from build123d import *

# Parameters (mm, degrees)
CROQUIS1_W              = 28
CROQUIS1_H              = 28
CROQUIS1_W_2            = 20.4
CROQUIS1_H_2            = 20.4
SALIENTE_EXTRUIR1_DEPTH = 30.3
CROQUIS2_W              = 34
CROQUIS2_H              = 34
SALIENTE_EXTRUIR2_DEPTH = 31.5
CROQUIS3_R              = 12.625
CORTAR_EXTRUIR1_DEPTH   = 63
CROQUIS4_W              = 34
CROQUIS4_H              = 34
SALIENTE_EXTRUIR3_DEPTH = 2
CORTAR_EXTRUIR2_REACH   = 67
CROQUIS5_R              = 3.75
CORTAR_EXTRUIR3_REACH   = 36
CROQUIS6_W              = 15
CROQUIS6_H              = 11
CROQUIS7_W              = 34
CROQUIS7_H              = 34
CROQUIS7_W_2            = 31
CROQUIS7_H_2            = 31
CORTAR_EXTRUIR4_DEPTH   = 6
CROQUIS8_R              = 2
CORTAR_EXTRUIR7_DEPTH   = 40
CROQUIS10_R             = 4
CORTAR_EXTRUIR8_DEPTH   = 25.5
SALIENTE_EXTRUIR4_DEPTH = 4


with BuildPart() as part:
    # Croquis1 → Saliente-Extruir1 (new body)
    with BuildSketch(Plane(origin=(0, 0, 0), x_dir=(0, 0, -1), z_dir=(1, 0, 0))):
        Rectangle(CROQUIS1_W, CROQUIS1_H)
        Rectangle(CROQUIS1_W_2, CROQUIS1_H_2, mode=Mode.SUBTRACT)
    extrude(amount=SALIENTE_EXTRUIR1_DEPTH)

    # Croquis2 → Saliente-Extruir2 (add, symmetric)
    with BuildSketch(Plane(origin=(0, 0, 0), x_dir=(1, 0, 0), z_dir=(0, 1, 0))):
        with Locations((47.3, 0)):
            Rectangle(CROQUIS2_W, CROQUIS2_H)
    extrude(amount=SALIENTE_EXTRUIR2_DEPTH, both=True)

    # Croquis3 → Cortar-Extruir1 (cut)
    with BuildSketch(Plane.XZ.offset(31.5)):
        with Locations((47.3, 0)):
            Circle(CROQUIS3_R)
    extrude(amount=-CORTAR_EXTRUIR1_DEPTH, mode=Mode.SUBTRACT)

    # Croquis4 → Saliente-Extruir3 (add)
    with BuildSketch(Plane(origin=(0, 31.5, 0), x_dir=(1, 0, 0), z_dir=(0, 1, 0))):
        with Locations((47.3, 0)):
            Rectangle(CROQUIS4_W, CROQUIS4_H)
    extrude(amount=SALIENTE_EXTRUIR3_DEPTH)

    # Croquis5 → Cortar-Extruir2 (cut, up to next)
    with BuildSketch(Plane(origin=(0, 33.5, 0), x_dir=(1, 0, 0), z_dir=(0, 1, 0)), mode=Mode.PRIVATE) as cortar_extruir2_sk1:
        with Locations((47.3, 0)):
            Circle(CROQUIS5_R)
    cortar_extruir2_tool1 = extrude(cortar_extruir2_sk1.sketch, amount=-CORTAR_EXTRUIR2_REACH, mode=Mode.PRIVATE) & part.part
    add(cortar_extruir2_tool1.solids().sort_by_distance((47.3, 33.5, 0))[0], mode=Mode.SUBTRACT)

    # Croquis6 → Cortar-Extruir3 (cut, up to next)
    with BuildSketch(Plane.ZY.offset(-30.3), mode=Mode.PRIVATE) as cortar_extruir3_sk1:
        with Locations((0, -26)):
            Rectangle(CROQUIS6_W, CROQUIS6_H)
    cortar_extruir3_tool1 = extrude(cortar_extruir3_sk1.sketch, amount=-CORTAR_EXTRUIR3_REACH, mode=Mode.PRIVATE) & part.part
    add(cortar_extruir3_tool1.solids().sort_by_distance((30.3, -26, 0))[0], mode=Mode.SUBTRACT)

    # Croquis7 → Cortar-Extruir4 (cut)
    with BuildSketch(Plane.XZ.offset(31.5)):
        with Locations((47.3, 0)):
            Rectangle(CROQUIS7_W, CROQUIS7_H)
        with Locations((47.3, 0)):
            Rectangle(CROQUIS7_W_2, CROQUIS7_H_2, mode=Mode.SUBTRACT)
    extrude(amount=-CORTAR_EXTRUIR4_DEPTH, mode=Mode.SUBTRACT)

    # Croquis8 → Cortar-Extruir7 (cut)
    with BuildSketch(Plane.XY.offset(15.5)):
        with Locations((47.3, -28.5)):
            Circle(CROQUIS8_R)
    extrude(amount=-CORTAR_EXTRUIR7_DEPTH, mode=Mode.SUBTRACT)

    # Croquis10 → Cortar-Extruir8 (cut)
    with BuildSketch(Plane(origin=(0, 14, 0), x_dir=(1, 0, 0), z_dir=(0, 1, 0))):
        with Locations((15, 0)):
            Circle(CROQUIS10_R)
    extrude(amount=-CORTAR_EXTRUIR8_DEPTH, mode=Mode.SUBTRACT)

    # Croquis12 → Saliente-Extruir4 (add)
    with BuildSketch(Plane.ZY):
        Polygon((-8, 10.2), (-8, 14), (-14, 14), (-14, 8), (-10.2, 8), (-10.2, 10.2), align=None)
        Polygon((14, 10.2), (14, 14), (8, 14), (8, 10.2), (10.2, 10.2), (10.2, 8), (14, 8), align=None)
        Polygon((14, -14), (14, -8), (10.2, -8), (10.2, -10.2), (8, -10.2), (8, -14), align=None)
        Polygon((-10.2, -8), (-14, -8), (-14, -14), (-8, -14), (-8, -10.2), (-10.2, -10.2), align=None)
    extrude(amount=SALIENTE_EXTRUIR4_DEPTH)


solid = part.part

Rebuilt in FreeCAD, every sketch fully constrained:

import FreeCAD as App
import Part
import Sketcher
from FreeCAD import Vector
Q = App.Units.Quantity

doc = App.newDocument("Part")
params = doc.addObject("Spreadsheet::Sheet", "Params")
for row, (alias, value) in enumerate([
    ("sketch1_width", "28 mm"),
    ("sketch1_width2", "20.4 mm"),
    ("pad1_length", "30.3 mm"),
    ("sketch2_width", "34 mm"),
    ("pad2_length", "63 mm"),
    ("sketch3_diameter", "25.25 mm"),
    ("pocket1_length", "63 mm"),
    ("sketch4_width", "34 mm"),
    ("pad3_length", "2 mm"),
    ("sketch5_diameter", "7.5 mm"),
    ("sketch6_width", "11 mm"),
    ("sketch6_height", "15 mm"),
    ("sketch7_width", "34 mm"),
    ("sketch7_width2", "31 mm"),
    ("pocket4_length", "6 mm"),
    ("sketch8_diameter", "4 mm"),
    ("pocket5_length", "40 mm"),
    ("sketch9_diameter", "8 mm"),
    ("pocket6_length", "25.5 mm"),
    ("sketch10_width", "6 mm"),
    ("sketch10_width2", "3.8 mm"),
    ("pad4_length", "4 mm"),
], start=1):
    params.set(f"A{row}", alias)
    params.set(f"B{row}", "=" + value)
    params.setAlias(f"B{row}", alias)

body = doc.addObject("PartDesign::Body", "Body")

# Sketch on YZ plane
sketch1 = doc.addObject("Sketcher::SketchObject", "Sketch")
body.addObject(sketch1)
sketch1.AttachmentSupport = (doc.YZ_Plane, [""])
sketch1.MapMode = "FlatFace"
sketch1.addGeometry([
    Part.LineSegment(Vector(14, 14, 0), Vector(-14, 14, 0)),  # 0
    Part.LineSegment(Vector(-14, 14, 0), Vector(-14, -14, 0)),  # 1
    Part.LineSegment(Vector(-14, -14, 0), Vector(14, -14, 0)),  # 2
    Part.LineSegment(Vector(14, -14, 0), Vector(14, 14, 0)),  # 3
    Part.LineSegment(Vector(-10, -10, 0), Vector(-10, 10, 0)),  # 4
    Part.LineSegment(Vector(-10, 10, 0), Vector(10, 10, 0)),  # 5
    Part.LineSegment(Vector(10, 10, 0), Vector(10, -10, 0)),  # 6
    Part.LineSegment(Vector(10, -10, 0), Vector(-10, -10, 0)),  # 7
], False)
sketch1.addConstraint([
    Sketcher.Constraint("Coincident", 0, 2, 1, 1),
    Sketcher.Constraint("Coincident", 1, 2, 2, 1),
    Sketcher.Constraint("Coincident", 2, 2, 3, 1),
    Sketcher.Constraint("Coincident", 3, 2, 0, 1),
    Sketcher.Constraint("Coincident", 4, 2, 5, 1),
    Sketcher.Constraint("Coincident", 5, 2, 6, 1),
    Sketcher.Constraint("Coincident", 6, 2, 7, 1),
    Sketcher.Constraint("Coincident", 7, 2, 4, 1),
    Sketcher.Constraint("Horizontal", 0),
    Sketcher.Constraint("Vertical", 1),
    Sketcher.Constraint("Horizontal", 2),
    Sketcher.Constraint("Vertical", 3),
    Sketcher.Constraint("Vertical", 4),
    Sketcher.Constraint("Horizontal", 5),
    Sketcher.Constraint("Vertical", 6),
    Sketcher.Constraint("Horizontal", 7),
    Sketcher.Constraint("Symmetric", 0, 2, 2, 2, -1, 1),
    Sketcher.Constraint("Symmetric", 4, 2, 6, 2, -1, 1),
    Sketcher.Constraint("Equal", 2, 1),
    Sketcher.Constraint("Equal", 7, 4),
    Sketcher.Constraint("DistanceX", 0, 2, 0, 1, Q("28 mm")),
    Sketcher.Constraint("DistanceX", 5, 1, 5, 2, Q("20.4 mm")),
])
sketch1.setExpression("Constraints[20]", "Params.sketch1_width")
sketch1.setExpression("Constraints[21]", "Params.sketch1_width2")
pad1 = doc.addObject("PartDesign::Pad", "Pad")
body.addObject(pad1)
pad1.Profile = sketch1
pad1.setExpression("Length", "Params.pad1_length")

# Sketch on XZ plane
sketch2 = doc.addObject("Sketcher::SketchObject", "Sketch001")
body.addObject(sketch2)
sketch2.AttachmentSupport = (doc.XZ_Plane, [""])
sketch2.MapMode = "FlatFace"
sketch2.addGeometry([
    Part.LineSegment(Vector(30, -17, 0), Vector(30, 17, 0)),
    Part.LineSegment(Vector(30, 17, 0), Vector(64, 17, 0)),
    Part.LineSegment(Vector(64, 17, 0), Vector(64, -17, 0)),
    Part.LineSegment(Vector(64, -17, 0), Vector(30, -17, 0)),
], False)
sketch2.addConstraint([
    Sketcher.Constraint("Coincident", 0, 2, 1, 1),
    Sketcher.Constraint("Coincident", 1, 2, 2, 1),
    Sketcher.Constraint("Coincident", 2, 2, 3, 1),
    Sketcher.Constraint("Coincident", 3, 2, 0, 1),
    Sketcher.Constraint("Vertical", 0),
    Sketcher.Constraint("Horizontal", 1),
    Sketcher.Constraint("Vertical", 2),
    Sketcher.Constraint("Horizontal", 3),
    Sketcher.Constraint("Equal", 3, 0),
    Sketcher.Constraint("DistanceX", 1, 1, 1, 2, Q("34 mm")),
    Sketcher.Constraint("DistanceY", -1, 1, 0, 2, Q("17 mm")),
    Sketcher.Constraint("DistanceX", -1, 1, 0, 2, Q("30.3 mm")),
])
sketch2.setExpression("Constraints[9]", "Params.sketch2_width")
pad2 = doc.addObject("PartDesign::Pad", "Pad001")
body.addObject(pad2)
pad2.Profile = sketch2
pad2.setExpression("Length", "Params.pad2_length")
pad2.Midplane = True

# Sketch on XZ plane
sketch3 = doc.addObject("Sketcher::SketchObject", "Sketch002")
body.addObject(sketch3)
sketch3.AttachmentSupport = (doc.XZ_Plane, [""])
sketch3.MapMode = "FlatFace"
sketch3.AttachmentOffset = App.Placement(Vector(0, 0, 31.5), App.Rotation())
sketch3.addGeometry(Part.Circle(Vector(47, 0, 0), Vector(0, 0, 1), 13), False)
sketch3.addConstraint([
    Sketcher.Constraint("PointOnObject", 0, 3, -1),
    Sketcher.Constraint("Diameter", 0, Q("25.25 mm")),
    Sketcher.Constraint("DistanceX", -1, 1, 0, 3, Q("47.3 mm")),
])
sketch3.setExpression("Constraints[1]", "Params.sketch3_diameter")
pocket1 = doc.addObject("PartDesign::Pocket", "Pocket")
body.addObject(pocket1)
pocket1.Profile = sketch3
pocket1.setExpression("Length", "Params.pocket1_length")

# Sketch on XZ plane
sketch4 = doc.addObject("Sketcher::SketchObject", "Sketch003")
body.addObject(sketch4)
sketch4.AttachmentSupport = (doc.XZ_Plane, [""])
sketch4.MapMode = "FlatFace"
sketch4.AttachmentOffset = App.Placement(Vector(0, 0, -31.5), App.Rotation())
sketch4.addGeometry([
    Part.LineSegment(Vector(30, -17, 0), Vector(30, 17, 0)),
    Part.LineSegment(Vector(30, 17, 0), Vector(64, 17, 0)),
    Part.LineSegment(Vector(64, 17, 0), Vector(64, -17, 0)),
    Part.LineSegment(Vector(64, -17, 0), Vector(30, -17, 0)),
], False)
sketch4.addConstraint([
    Sketcher.Constraint("Coincident", 0, 2, 1, 1),
    Sketcher.Constraint("Coincident", 1, 2, 2, 1),
    Sketcher.Constraint("Coincident", 2, 2, 3, 1),
    Sketcher.Constraint("Coincident", 3, 2, 0, 1),
    Sketcher.Constraint("Vertical", 0),
    Sketcher.Constraint("Horizontal", 1),
    Sketcher.Constraint("Vertical", 2),
    Sketcher.Constraint("Horizontal", 3),
    Sketcher.Constraint("Equal", 3, 0),
    Sketcher.Constraint("DistanceX", 1, 1, 1, 2, Q("34 mm")),
    Sketcher.Constraint("DistanceY", -1, 1, 0, 2, Q("17 mm")),
    Sketcher.Constraint("DistanceX", -1, 1, 0, 2, Q("30.3 mm")),
])
sketch4.setExpression("Constraints[9]", "Params.sketch4_width")
pad3 = doc.addObject("PartDesign::Pad", "Pad002")
body.addObject(pad3)
pad3.Profile = sketch4
pad3.setExpression("Length", "Params.pad3_length")
pad3.Reversed = True

# Sketch on XZ plane
sketch5 = doc.addObject("Sketcher::SketchObject", "Sketch004")
body.addObject(sketch5)
sketch5.AttachmentSupport = (doc.XZ_Plane, [""])
sketch5.MapMode = "FlatFace"
sketch5.AttachmentOffset = App.Placement(Vector(0, 0, -33.5), App.Rotation())
sketch5.addGeometry(Part.Circle(Vector(47.3, 0, 0), Vector(0, 0, 1), 3.8), False)
sketch5.addConstraint([
    Sketcher.Constraint("PointOnObject", 0, 3, -1),
    Sketcher.Constraint("Diameter", 0, Q("7.5 mm")),
    Sketcher.Constraint("DistanceX", -1, 1, 0, 3, Q("47.3 mm")),
])
sketch5.setExpression("Constraints[1]", "Params.sketch5_diameter")
pocket2 = doc.addObject("PartDesign::Pocket", "Pocket001")
body.addObject(pocket2)
pocket2.Profile = sketch5
pocket2.Type = "UpToFirst"
pocket2.Reversed = True

# Sketch on YZ plane
sketch6 = doc.addObject("Sketcher::SketchObject", "Sketch005")
body.addObject(sketch6)
sketch6.AttachmentSupport = (doc.YZ_Plane, [""])
sketch6.MapMode = "FlatFace"
sketch6.AttachmentOffset = App.Placement(Vector(0, 0, 30.3), App.Rotation())
sketch6.addGeometry([
    Part.LineSegment(Vector(-20, -8, 0), Vector(-32, -8, 0)),
    Part.LineSegment(Vector(-32, -8, 0), Vector(-32, 8, 0)),
    Part.LineSegment(Vector(-32, 8, 0), Vector(-20, 8, 0)),
    Part.LineSegment(Vector(-20, 8, 0), Vector(-20, -8, 0)),
], False)
sketch6.addConstraint([
    Sketcher.Constraint("Coincident", 0, 2, 1, 1),
    Sketcher.Constraint("Coincident", 1, 2, 2, 1),
    Sketcher.Constraint("Coincident", 2, 2, 3, 1),
    Sketcher.Constraint("Coincident", 3, 2, 0, 1),
    Sketcher.Constraint("Horizontal", 0),
    Sketcher.Constraint("Vertical", 1),
    Sketcher.Constraint("Horizontal", 2),
    Sketcher.Constraint("Vertical", 3),
    Sketcher.Constraint("DistanceX", 0, 2, 0, 1, Q("11 mm")),
    Sketcher.Constraint("DistanceY", 1, 1, 1, 2, Q("15 mm")),
    Sketcher.Constraint("DistanceX", 0, 2, -1, 1, Q("31.5 mm")),
    Sketcher.Constraint("DistanceY", 0, 2, -1, 1, Q("7.5 mm")),
])
sketch6.setExpression("Constraints[8]", "Params.sketch6_width")
sketch6.setExpression("Constraints[9]", "Params.sketch6_height")
pocket3 = doc.addObject("PartDesign::Pocket", "Pocket002")
body.addObject(pocket3)
pocket3.Profile = sketch6
pocket3.Type = "UpToFirst"
pocket3.Reversed = True

# Sketch on XZ plane
sketch7 = doc.addObject("Sketcher::SketchObject", "Sketch006")
body.addObject(sketch7)
sketch7.AttachmentSupport = (doc.XZ_Plane, [""])
sketch7.MapMode = "FlatFace"
sketch7.AttachmentOffset = App.Placement(Vector(0, 0, 31.5), App.Rotation())
sketch7.addGeometry([
    Part.LineSegment(Vector(30, 17, 0), Vector(30, -17, 0)),  # 0
    Part.LineSegment(Vector(30, -17, 0), Vector(64, -17, 0)),  # 1
    Part.LineSegment(Vector(64, -17, 0), Vector(64, 17, 0)),  # 2
    Part.LineSegment(Vector(64, 17, 0), Vector(30, 17, 0)),  # 3
    Part.LineSegment(Vector(63, -16, 0), Vector(32, -16, 0)),  # 4
    Part.LineSegment(Vector(32, -16, 0), Vector(32, 16, 0)),  # 5
    Part.LineSegment(Vector(32, 16, 0), Vector(63, 16, 0)),  # 6
    Part.LineSegment(Vector(63, 16, 0), Vector(63, -16, 0)),  # 7
], False)
sketch7.addConstraint([
    Sketcher.Constraint("Coincident", 0, 2, 1, 1),
    Sketcher.Constraint("Coincident", 1, 2, 2, 1),
    Sketcher.Constraint("Coincident", 2, 2, 3, 1),
    Sketcher.Constraint("Coincident", 3, 2, 0, 1),
    Sketcher.Constraint("Coincident", 4, 2, 5, 1),
    Sketcher.Constraint("Coincident", 5, 2, 6, 1),
    Sketcher.Constraint("Coincident", 6, 2, 7, 1),
    Sketcher.Constraint("Coincident", 7, 2, 4, 1),
    Sketcher.Constraint("Vertical", 0),
    Sketcher.Constraint("Horizontal", 1),
    Sketcher.Constraint("Vertical", 2),
    Sketcher.Constraint("Horizontal", 3),
    Sketcher.Constraint("Horizontal", 4),
    Sketcher.Constraint("Vertical", 5),
    Sketcher.Constraint("Horizontal", 6),
    Sketcher.Constraint("Vertical", 7),
    Sketcher.Constraint("Equal", 3, 0),
    Sketcher.Constraint("Equal", 6, 5),
    Sketcher.Constraint("DistanceX", 1, 1, 1, 2, Q("34 mm")),
    Sketcher.Constraint("DistanceX", 4, 2, 4, 1, Q("31 mm")),
    Sketcher.Constraint("DistanceY", 0, 2, -1, 1, Q("17 mm")),
    Sketcher.Constraint("DistanceX", -1, 1, 0, 2, Q("30.3 mm")),
    Sketcher.Constraint("DistanceX", -1, 1, 4, 2, Q("31.8 mm")),
    Sketcher.Constraint("DistanceY", 4, 2, -1, 1, Q("15.5 mm")),
])
sketch7.setExpression("Constraints[18]", "Params.sketch7_width")
sketch7.setExpression("Constraints[19]", "Params.sketch7_width2")
pocket4 = doc.addObject("PartDesign::Pocket", "Pocket003")
body.addObject(pocket4)
pocket4.Profile = sketch7
pocket4.setExpression("Length", "Params.pocket4_length")

# Sketch on XY plane
sketch8 = doc.addObject("Sketcher::SketchObject", "Sketch007")
body.addObject(sketch8)
sketch8.AttachmentSupport = (doc.XY_Plane, [""])
sketch8.MapMode = "FlatFace"
sketch8.AttachmentOffset = App.Placement(Vector(0, 0, 15.5), App.Rotation())
sketch8.addGeometry(Part.Circle(Vector(47.3, -28.5, 0), Vector(0, 0, 1), 2), False)
sketch8.addConstraint([
    Sketcher.Constraint("Diameter", 0, Q("4 mm")),
    Sketcher.Constraint("DistanceX", -1, 1, 0, 3, Q("47.3 mm")),
    Sketcher.Constraint("DistanceY", 0, 3, -1, 1, Q("28.5 mm")),
])
sketch8.setExpression("Constraints[0]", "Params.sketch8_diameter")
pocket5 = doc.addObject("PartDesign::Pocket", "Pocket004")
body.addObject(pocket5)
pocket5.Profile = sketch8
pocket5.setExpression("Length", "Params.pocket5_length")

# Sketch on XZ plane
sketch9 = doc.addObject("Sketcher::SketchObject", "Sketch008")
body.addObject(sketch9)
sketch9.AttachmentSupport = (doc.XZ_Plane, [""])
sketch9.MapMode = "FlatFace"
sketch9.AttachmentOffset = App.Placement(Vector(0, 0, -14), App.Rotation())
sketch9.addGeometry(Part.Circle(Vector(15, 0, 0), Vector(0, 0, 1), 4), False)
sketch9.addConstraint([
    Sketcher.Constraint("PointOnObject", 0, 3, -1),
    Sketcher.Constraint("Diameter", 0, Q("8 mm")),
    Sketcher.Constraint("DistanceX", -1, 1, 0, 3, Q("15 mm")),
])
sketch9.setExpression("Constraints[1]", "Params.sketch9_diameter")
pocket6 = doc.addObject("PartDesign::Pocket", "Pocket005")
body.addObject(pocket6)
pocket6.Profile = sketch9
pocket6.setExpression("Length", "Params.pocket6_length")
pocket6.Reversed = True

# Sketch on YZ plane
sketch10 = doc.addObject("Sketcher::SketchObject", "Sketch009")
body.addObject(sketch10)
sketch10.AttachmentSupport = (doc.YZ_Plane, [""])
sketch10.MapMode = "FlatFace"
sketch10.addGeometry([
    Part.LineSegment(Vector(10.2, -8, 0), Vector(14, -8, 0)),  # 0
    Part.LineSegment(Vector(14, -8, 0), Vector(14, -14, 0)),  # 1
    Part.LineSegment(Vector(14, -14, 0), Vector(8, -14, 0)),  # 2
    Part.LineSegment(Vector(8, -14, 0), Vector(8, -10.2, 0)),  # 3
    Part.LineSegment(Vector(8, -10.2, 0), Vector(10.2, -10.2, 0)),  # 4
    Part.LineSegment(Vector(10.2, -10.2, 0), Vector(10.2, -8, 0)),  # 5
    Part.LineSegment(Vector(14, 14, 0), Vector(14, 8, 0)),  # 6
    Part.LineSegment(Vector(14, 8, 0), Vector(10.2, 8, 0)),  # 7
    Part.LineSegment(Vector(10.2, 8, 0), Vector(10.2, 10.2, 0)),  # 8
    Part.LineSegment(Vector(10.2, 10.2, 0), Vector(8, 10.2, 0)),  # 9
    Part.LineSegment(Vector(8, 10.2, 0), Vector(8, 14, 0)),  # 10
    Part.LineSegment(Vector(8, 14, 0), Vector(14, 14, 0)),  # 11
    Part.LineSegment(Vector(-14, 14, 0), Vector(-8, 14, 0)),  # 12
    Part.LineSegment(Vector(-8, 14, 0), Vector(-8, 10.2, 0)),  # 13
    Part.LineSegment(Vector(-8, 10.2, 0), Vector(-10.2, 10.2, 0)),  # 14
    Part.LineSegment(Vector(-10.2, 10.2, 0), Vector(-10.2, 8, 0)),  # 15
    Part.LineSegment(Vector(-10.2, 8, 0), Vector(-14, 8, 0)),  # 16
    Part.LineSegment(Vector(-14, 8, 0), Vector(-14, 14, 0)),  # 17
    Part.LineSegment(Vector(-8, -10.2, 0), Vector(-8, -14, 0)),  # 18
    Part.LineSegment(Vector(-8, -14, 0), Vector(-14, -14, 0)),  # 19
    Part.LineSegment(Vector(-14, -14, 0), Vector(-14, -8, 0)),  # 20
    Part.LineSegment(Vector(-14, -8, 0), Vector(-10.2, -8, 0)),  # 21
    Part.LineSegment(Vector(-10.2, -8, 0), Vector(-10.2, -10.2, 0)),  # 22
    Part.LineSegment(Vector(-10.2, -10.2, 0), Vector(-8, -10.2, 0)),  # 23
], False)
sketch10.addConstraint([
    Sketcher.Constraint("Coincident", 0, 2, 1, 1),
    Sketcher.Constraint("Coincident", 1, 2, 2, 1),
    Sketcher.Constraint("Coincident", 2, 2, 3, 1),
    Sketcher.Constraint("Coincident", 3, 2, 4, 1),
    Sketcher.Constraint("Coincident", 4, 2, 5, 1),
    Sketcher.Constraint("Coincident", 5, 2, 0, 1),
    Sketcher.Constraint("Coincident", 6, 2, 7, 1),
    Sketcher.Constraint("Coincident", 7, 2, 8, 1),
    Sketcher.Constraint("Coincident", 8, 2, 9, 1),
    Sketcher.Constraint("Coincident", 9, 2, 10, 1),
    Sketcher.Constraint("Coincident", 10, 2, 11, 1),
    Sketcher.Constraint("Coincident", 11, 2, 6, 1),
    Sketcher.Constraint("Coincident", 12, 2, 13, 1),
    Sketcher.Constraint("Coincident", 13, 2, 14, 1),
    Sketcher.Constraint("Coincident", 14, 2, 15, 1),
    Sketcher.Constraint("Coincident", 15, 2, 16, 1),
    Sketcher.Constraint("Coincident", 16, 2, 17, 1),
    Sketcher.Constraint("Coincident", 17, 2, 12, 1),
    Sketcher.Constraint("Coincident", 18, 2, 19, 1),
    Sketcher.Constraint("Coincident", 19, 2, 20, 1),
    Sketcher.Constraint("Coincident", 20, 2, 21, 1),
    Sketcher.Constraint("Coincident", 21, 2, 22, 1),
    Sketcher.Constraint("Coincident", 22, 2, 23, 1),
    Sketcher.Constraint("Coincident", 23, 2, 18, 1),
    Sketcher.Constraint("Horizontal", 0),
    Sketcher.Constraint("Vertical", 1),
    Sketcher.Constraint("Horizontal", 2),
    Sketcher.Constraint("Vertical", 3),
    Sketcher.Constraint("Horizontal", 4),
    Sketcher.Constraint("Vertical", 5),
    Sketcher.Constraint("Vertical", 6),
    Sketcher.Constraint("Horizontal", 7),
    Sketcher.Constraint("Vertical", 8),
    Sketcher.Constraint("Horizontal", 9),
    Sketcher.Constraint("Vertical", 10),
    Sketcher.Constraint("Horizontal", 11),
    Sketcher.Constraint("Horizontal", 12),
    Sketcher.Constraint("Vertical", 13),
    Sketcher.Constraint("Horizontal", 14),
    Sketcher.Constraint("Vertical", 15),
    Sketcher.Constraint("Horizontal", 16),
    Sketcher.Constraint("Vertical", 17),
    Sketcher.Constraint("Vertical", 18),
    Sketcher.Constraint("Horizontal", 19),
    Sketcher.Constraint("Vertical", 20),
    Sketcher.Constraint("Horizontal", 21),
    Sketcher.Constraint("Vertical", 22),
    Sketcher.Constraint("Horizontal", 23),
    Sketcher.Constraint("Symmetric", 2, 2, 12, 2, -1, 1),
    Sketcher.Constraint("Symmetric", 4, 2, 14, 2, -1, 1),
    Sketcher.Constraint("Symmetric", 0, 2, 16, 2, -1, 1),
    Sketcher.Constraint("Symmetric", 10, 2, 18, 2, -1, 1),
    Sketcher.Constraint("Symmetric", 6, 2, 20, 2, -1, 1),
    Sketcher.Constraint("Symmetric", 8, 2, 22, 2, -1, 1),
    Sketcher.Constraint("Symmetric", 10, 2, 12, 2, -2),
    Sketcher.Constraint("Symmetric", 8, 2, 14, 2, -2),
    Sketcher.Constraint("Symmetric", 6, 2, 16, 2, -2),
    Sketcher.Constraint("Equal", 19, 1),
    Sketcher.Constraint("Equal", 21, 3),
    Sketcher.Constraint("DistanceX", 2, 2, 2, 1, Q("6 mm")),
    Sketcher.Constraint("DistanceX", 0, 1, 0, 2, Q("3.8 mm")),
    Sketcher.Constraint("DistanceX", -1, 1, 0, 2, Q("14 mm")),
    Sketcher.Constraint("DistanceY", 0, 2, -1, 1, Q("8 mm")),
])
sketch10.setExpression("Constraints[59]", "Params.sketch10_width")
sketch10.setExpression("Constraints[60]", "Params.sketch10_width2")
pad4 = doc.addObject("PartDesign::Pad", "Pad003")
body.addObject(pad4)
pad4.Profile = sketch10
pad4.setExpression("Length", "Params.pad4_length")
pad4.Reversed = True

doc.recompute()
